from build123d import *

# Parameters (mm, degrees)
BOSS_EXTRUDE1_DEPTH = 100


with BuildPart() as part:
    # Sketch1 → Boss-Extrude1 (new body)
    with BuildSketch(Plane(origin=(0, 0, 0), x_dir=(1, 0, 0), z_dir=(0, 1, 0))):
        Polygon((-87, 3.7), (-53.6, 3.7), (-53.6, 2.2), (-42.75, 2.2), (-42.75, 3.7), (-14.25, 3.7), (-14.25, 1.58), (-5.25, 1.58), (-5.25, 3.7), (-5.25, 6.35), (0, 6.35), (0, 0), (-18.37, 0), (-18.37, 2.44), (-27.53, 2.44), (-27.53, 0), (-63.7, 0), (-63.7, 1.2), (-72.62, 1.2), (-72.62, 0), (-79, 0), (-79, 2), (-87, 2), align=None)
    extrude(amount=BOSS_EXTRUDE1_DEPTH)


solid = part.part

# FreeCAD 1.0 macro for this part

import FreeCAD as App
import Part
import Sketcher
Q = App.Units.Quantity

doc = App.newDocument("Part")
body = doc.addObject("PartDesign::Body", "Body")

# Sketch on XZ plane
sketch1 = body.newObject("Sketcher::SketchObject", "Sketch")
sketch1.AttachmentSupport = (doc.getObject("XZ_Plane"), [""])
sketch1.MapMode = "FlatFace"
sketch1.addGeometry([
    Part.LineSegment(App.Vector(-53.6, -3.7, 0), App.Vector(-87, -3.7, 0)),  # 0
    Part.LineSegment(App.Vector(-87, -3.7, 0), App.Vector(-87, -2, 0)),  # 1
    Part.LineSegment(App.Vector(-87, -2, 0), App.Vector(-79, -2, 0)),  # 2
    Part.LineSegment(App.Vector(-79, -2, 0), App.Vector(-79, 0, 0)),  # 3
    Part.LineSegment(App.Vector(-79, 0, 0), App.Vector(-72.6, 0, 0)),  # 4
    Part.LineSegment(App.Vector(-72.6, 0, 0), App.Vector(-72.6, -1.2, 0)),  # 5
    Part.LineSegment(App.Vector(-72.6, -1.2, 0), App.Vector(-63.7, -1.2, 0)),  # 6
    Part.LineSegment(App.Vector(-63.7, -1.2, 0), App.Vector(-63.7, 0, 0)),  # 7
    Part.LineSegment(App.Vector(-63.7, 0, 0), App.Vector(-27.5, 0, 0)),  # 8
    Part.LineSegment(App.Vector(-27.5, 0, 0), App.Vector(-27.5, -2.4, 0)),  # 9
    Part.LineSegment(App.Vector(-27.5, -2.4, 0), App.Vector(-18.4, -2.4, 0)),  # 10
    Part.LineSegment(App.Vector(-18.4, -2.4, 0), App.Vector(-18.4, 0, 0)),  # 11
    Part.LineSegment(App.Vector(-18.4, 0, 0), App.Vector(0, 0, 0)),  # 12
    Part.LineSegment(App.Vector(0, 0, 0), App.Vector(0, -6.3, 0)),  # 13
    Part.LineSegment(App.Vector(0, -6.3, 0), App.Vector(-5.2, -6.3, 0)),  # 14
    Part.LineSegment(App.Vector(-5.2, -6.3, 0), App.Vector(-5.2, -1.6, 0)),  # 15
    Part.LineSegment(App.Vector(-5.2, -1.6, 0), App.Vector(-14.2, -1.6, 0)),  # 16
    Part.LineSegment(App.Vector(-14.2, -1.6, 0), App.Vector(-14.2, -3.7, 0)),  # 17
    Part.LineSegment(App.Vector(-14.2, -3.7, 0), App.Vector(-42.8, -3.7, 0)),  # 18
    Part.LineSegment(App.Vector(-42.8, -3.7, 0), App.Vector(-42.8, -2.2, 0)),  # 19
    Part.LineSegment(App.Vector(-42.8, -2.2, 0), App.Vector(-53.6, -2.2, 0)),  # 20
    Part.LineSegment(App.Vector(-53.6, -2.2, 0), App.Vector(-53.6, -3.7, 0)),  # 21
], False)
sketch1.addConstraint([
    Sketcher.Constraint("Coincident", 0, 2, 1, 1),
    Sketcher.Constraint("Coincident", 1, 2, 2, 1),
    Sketcher.Constraint("Coincident", 2, 2, 3, 1),
    Sketcher.Constraint("Coincident", 3, 2, 4, 1),
    Sketcher.Constraint("Coincident", 4, 2, 5, 1),
    Sketcher.Constraint("Coincident", 5, 2, 6, 1),
    Sketcher.Constraint("Coincident", 6, 2, 7, 1),
    Sketcher.Constraint("Coincident", 7, 2, 8, 1),
    Sketcher.Constraint("Coincident", 8, 2, 9, 1),
    Sketcher.Constraint("Coincident", 9, 2, 10, 1),
    Sketcher.Constraint("Coincident", 10, 2, 11, 1),
    Sketcher.Constraint("Coincident", 11, 2, 12, 1),
    Sketcher.Constraint("Coincident", 12, 2, 13, 1),
    Sketcher.Constraint("Coincident", 13, 2, 14, 1),
    Sketcher.Constraint("Coincident", 14, 2, 15, 1),
    Sketcher.Constraint("Coincident", 15, 2, 16, 1),
    Sketcher.Constraint("Coincident", 16, 2, 17, 1),
    Sketcher.Constraint("Coincident", 17, 2, 18, 1),
    Sketcher.Constraint("Coincident", 18, 2, 19, 1),
    Sketcher.Constraint("Coincident", 19, 2, 20, 1),
    Sketcher.Constraint("Coincident", 20, 2, 21, 1),
    Sketcher.Constraint("Coincident", 21, 2, 0, 1),
    Sketcher.Constraint("Horizontal", 0),
    Sketcher.Constraint("Vertical", 1),
    Sketcher.Constraint("Horizontal", 2),
    Sketcher.Constraint("Vertical", 3),
    Sketcher.Constraint("Horizontal", 4),
    Sketcher.Constraint("Vertical", 5),
    Sketcher.Constraint("Horizontal", 6),
    Sketcher.Constraint("Vertical", 7),
    Sketcher.Constraint("Horizontal", 8),
    Sketcher.Constraint("Vertical", 9),
    Sketcher.Constraint("Horizontal", 10),
    Sketcher.Constraint("Vertical", 11),
    Sketcher.Constraint("Horizontal", 12),
    Sketcher.Constraint("Vertical", 13),
    Sketcher.Constraint("Horizontal", 14),
    Sketcher.Constraint("Vertical", 15),
    Sketcher.Constraint("Horizontal", 16),
    Sketcher.Constraint("Vertical", 17),
    Sketcher.Constraint("Horizontal", 18),
    Sketcher.Constraint("Vertical", 19),
    Sketcher.Constraint("Horizontal", 20),
    Sketcher.Constraint("Vertical", 21),
    Sketcher.Constraint("Coincident", 12, 2, -1, 1),
    Sketcher.Constraint("PointOnObject", 3, 2, -1),
    Sketcher.Constraint("PointOnObject", 7, 2, -1),
    Sketcher.Constraint("Horizontal", 0, 2, 17, 2),
    Sketcher.Constraint("DistanceX", 2, 1, 2, 2, Q("8 mm")),
    Sketcher.Constraint("DistanceX", 16, 2, 16, 1, Q("9 mm")),
    Sketcher.Constraint("DistanceY", 3, 1, 3, 2, Q("2 mm")),
    Sketcher.Constraint("DistanceX", 0, 2, 0, 1, Q("33.4 mm")),
    Sketcher.Constraint("DistanceX", 18, 2, 18, 1, Q("28.5 mm")),
    Sketcher.Constraint("DistanceY", 1, 1, 1, 2, Q("1.7 mm")),
    Sketcher.Constraint("DistanceY", 5, 2, 5, 1, Q("1.2 mm")),
    Sketcher.Constraint("DistanceY", 19, 1, 19, 2, Q("1.5 mm")),
    Sketcher.Constraint("DistanceX", 0, 2, -1, 1, Q("87 mm")),
    Sketcher.Constraint("DistanceX", 4, 1, 4, 2, Q("6.38 mm")),
    Sketcher.Constraint("DistanceX", 6, 1, 6, 2, Q("8.92 mm")),
    Sketcher.Constraint("DistanceX", 8, 1, 8, 2, Q("36.17 mm")),
    Sketcher.Constraint("DistanceX", 10, 1, 10, 2, Q("9.16 mm")),
    Sketcher.Constraint("DistanceX", 14, 2, 14, 1, Q("5.25 mm")),
    Sketcher.Constraint("DistanceY", 9, 2, 9, 1, Q("2.44 mm")),
    Sketcher.Constraint("DistanceY", 13, 2, 13, 1, Q("6.35 mm")),
    Sketcher.Constraint("DistanceY", 15, 1, 15, 2, Q("4.77 mm")),
])
pad1 = body.newObject("PartDesign::Pad", "Pad")
pad1.Profile = sketch1
pad1.Length = 100
pad1.Reversed = True

doc.recompute()
